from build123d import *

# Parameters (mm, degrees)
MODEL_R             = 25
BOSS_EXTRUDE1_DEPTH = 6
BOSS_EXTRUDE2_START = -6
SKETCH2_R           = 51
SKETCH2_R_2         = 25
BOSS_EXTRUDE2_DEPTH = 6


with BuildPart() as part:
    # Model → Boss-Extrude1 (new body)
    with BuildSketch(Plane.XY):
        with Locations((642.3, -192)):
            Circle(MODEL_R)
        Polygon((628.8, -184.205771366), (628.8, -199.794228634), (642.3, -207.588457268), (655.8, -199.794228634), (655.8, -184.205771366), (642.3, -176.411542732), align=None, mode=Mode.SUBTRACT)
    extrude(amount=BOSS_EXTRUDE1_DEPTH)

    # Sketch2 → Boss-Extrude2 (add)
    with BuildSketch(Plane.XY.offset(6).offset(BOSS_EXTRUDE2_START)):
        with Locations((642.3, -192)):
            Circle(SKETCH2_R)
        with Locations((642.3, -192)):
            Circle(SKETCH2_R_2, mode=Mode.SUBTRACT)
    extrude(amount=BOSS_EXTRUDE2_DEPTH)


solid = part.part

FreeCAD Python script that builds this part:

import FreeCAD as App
import Part
import Sketcher

V = App.Vector
Q = App.Units.Quantity


def add_polygon(sketch, points):
    """Adds a closed chain of lines whose ends are joined by coincident constraints."""
    first, n = sketch.GeometryCount, len(points)
    for a, b in zip(points, points[1:] + points[:1]):
        sketch.addGeometry(Part.LineSegment(App.Vector(*a, 0), App.Vector(*b, 0)), False)
    for i in range(n):
        sketch.addConstraint(Sketcher.Constraint("Coincident", first + i, 2, first + (i + 1) % n, 1))

doc = App.newDocument("Part")
body = doc.addObject("PartDesign::Body", "Body")

# Sketch on XY plane
sketch1 = doc.addObject("Sketcher::SketchObject", "Sketch")
body.addObject(sketch1)
sketch1.AttachmentSupport = (doc.XY_Plane, [""])
sketch1.MapMode = "FlatFace"
sketch1.addGeometry(Part.Circle(V(642.3, -192, 0), V(0, 0, 1), 25), False)  # 0
add_polygon(sketch1, [(628.8, -199.794229), (628.8, -184.205771), (642.3, -176.411543), (655.8, -184.205771), (655.8, -199.794229), (642.3, -207.588457)])  # lines 1-6
sketch1.addConstraint([
    Sketcher.Constraint("Vertical", 1),
    Sketcher.Constraint("Vertical", 4),
    Sketcher.Constraint("Parallel", 2, 5),
    Sketcher.Constraint("Parallel", 3, 6),
    Sketcher.Constraint("Horizontal", 1, 2, 3, 2),
    Sketcher.Constraint("Horizontal", 4, 2, 6, 2),
    Sketcher.Constraint("Vertical", 0, 3, 2, 2),
    Sketcher.Constraint("Vertical", 2, 2, 5, 2),
    Sketcher.Constraint("Diameter", 0, Q("50 mm")),
    Sketcher.Constraint("Angle", 2, Q("30 deg")),
    Sketcher.Constraint("DistanceY", 0, 3, -1, 1, Q("192 mm")),
    Sketcher.Constraint("DistanceX", 1, 2, 3, 2, Q("27 mm")),
    Sketcher.Constraint("DistanceX", -1, 1, 0, 3, Q("642.3 mm")),
    Sketcher.Constraint("DistanceY", 1, 1, 1, 2, Q("15.588457 mm")),
    Sketcher.Constraint("DistanceY", 1, 2, -1, 1, Q("184.205771 mm")),
])
pad1 = doc.addObject("PartDesign::Pad", "Pad")
body.addObject(pad1)
pad1.Profile = sketch1
pad1.Length = 6

# Sketch on XY plane
sketch2 = doc.addObject("Sketcher::SketchObject", "Sketch001")
body.addObject(sketch2)
sketch2.AttachmentSupport = (doc.XY_Plane, [""])
sketch2.MapMode = "FlatFace"
sketch2.addGeometry([
    Part.Circle(V(642.3, -192, 0), V(0, 0, 1), 51),
    Part.Circle(V(642.3, -192, 0), V(0, 0, 1), 25),
], False)
sketch2.addConstraint([
    Sketcher.Constraint("Coincident", 1, 3, 0, 3),
    Sketcher.Constraint("Diameter", 0, Q("102 mm")),
    Sketcher.Constraint("Diameter", 1, Q("50 mm")),
    Sketcher.Constraint("DistanceY", 0, 3, -1, 1, Q("192 mm")),
    Sketcher.Constraint("DistanceX", -1, 1, 0, 3, Q("642.3 mm")),
])
pad2 = doc.addObject("PartDesign::Pad", "Pad001")
body.addObject(pad2)
pad2.Profile = sketch2
pad2.Length = 6

doc.recompute()
